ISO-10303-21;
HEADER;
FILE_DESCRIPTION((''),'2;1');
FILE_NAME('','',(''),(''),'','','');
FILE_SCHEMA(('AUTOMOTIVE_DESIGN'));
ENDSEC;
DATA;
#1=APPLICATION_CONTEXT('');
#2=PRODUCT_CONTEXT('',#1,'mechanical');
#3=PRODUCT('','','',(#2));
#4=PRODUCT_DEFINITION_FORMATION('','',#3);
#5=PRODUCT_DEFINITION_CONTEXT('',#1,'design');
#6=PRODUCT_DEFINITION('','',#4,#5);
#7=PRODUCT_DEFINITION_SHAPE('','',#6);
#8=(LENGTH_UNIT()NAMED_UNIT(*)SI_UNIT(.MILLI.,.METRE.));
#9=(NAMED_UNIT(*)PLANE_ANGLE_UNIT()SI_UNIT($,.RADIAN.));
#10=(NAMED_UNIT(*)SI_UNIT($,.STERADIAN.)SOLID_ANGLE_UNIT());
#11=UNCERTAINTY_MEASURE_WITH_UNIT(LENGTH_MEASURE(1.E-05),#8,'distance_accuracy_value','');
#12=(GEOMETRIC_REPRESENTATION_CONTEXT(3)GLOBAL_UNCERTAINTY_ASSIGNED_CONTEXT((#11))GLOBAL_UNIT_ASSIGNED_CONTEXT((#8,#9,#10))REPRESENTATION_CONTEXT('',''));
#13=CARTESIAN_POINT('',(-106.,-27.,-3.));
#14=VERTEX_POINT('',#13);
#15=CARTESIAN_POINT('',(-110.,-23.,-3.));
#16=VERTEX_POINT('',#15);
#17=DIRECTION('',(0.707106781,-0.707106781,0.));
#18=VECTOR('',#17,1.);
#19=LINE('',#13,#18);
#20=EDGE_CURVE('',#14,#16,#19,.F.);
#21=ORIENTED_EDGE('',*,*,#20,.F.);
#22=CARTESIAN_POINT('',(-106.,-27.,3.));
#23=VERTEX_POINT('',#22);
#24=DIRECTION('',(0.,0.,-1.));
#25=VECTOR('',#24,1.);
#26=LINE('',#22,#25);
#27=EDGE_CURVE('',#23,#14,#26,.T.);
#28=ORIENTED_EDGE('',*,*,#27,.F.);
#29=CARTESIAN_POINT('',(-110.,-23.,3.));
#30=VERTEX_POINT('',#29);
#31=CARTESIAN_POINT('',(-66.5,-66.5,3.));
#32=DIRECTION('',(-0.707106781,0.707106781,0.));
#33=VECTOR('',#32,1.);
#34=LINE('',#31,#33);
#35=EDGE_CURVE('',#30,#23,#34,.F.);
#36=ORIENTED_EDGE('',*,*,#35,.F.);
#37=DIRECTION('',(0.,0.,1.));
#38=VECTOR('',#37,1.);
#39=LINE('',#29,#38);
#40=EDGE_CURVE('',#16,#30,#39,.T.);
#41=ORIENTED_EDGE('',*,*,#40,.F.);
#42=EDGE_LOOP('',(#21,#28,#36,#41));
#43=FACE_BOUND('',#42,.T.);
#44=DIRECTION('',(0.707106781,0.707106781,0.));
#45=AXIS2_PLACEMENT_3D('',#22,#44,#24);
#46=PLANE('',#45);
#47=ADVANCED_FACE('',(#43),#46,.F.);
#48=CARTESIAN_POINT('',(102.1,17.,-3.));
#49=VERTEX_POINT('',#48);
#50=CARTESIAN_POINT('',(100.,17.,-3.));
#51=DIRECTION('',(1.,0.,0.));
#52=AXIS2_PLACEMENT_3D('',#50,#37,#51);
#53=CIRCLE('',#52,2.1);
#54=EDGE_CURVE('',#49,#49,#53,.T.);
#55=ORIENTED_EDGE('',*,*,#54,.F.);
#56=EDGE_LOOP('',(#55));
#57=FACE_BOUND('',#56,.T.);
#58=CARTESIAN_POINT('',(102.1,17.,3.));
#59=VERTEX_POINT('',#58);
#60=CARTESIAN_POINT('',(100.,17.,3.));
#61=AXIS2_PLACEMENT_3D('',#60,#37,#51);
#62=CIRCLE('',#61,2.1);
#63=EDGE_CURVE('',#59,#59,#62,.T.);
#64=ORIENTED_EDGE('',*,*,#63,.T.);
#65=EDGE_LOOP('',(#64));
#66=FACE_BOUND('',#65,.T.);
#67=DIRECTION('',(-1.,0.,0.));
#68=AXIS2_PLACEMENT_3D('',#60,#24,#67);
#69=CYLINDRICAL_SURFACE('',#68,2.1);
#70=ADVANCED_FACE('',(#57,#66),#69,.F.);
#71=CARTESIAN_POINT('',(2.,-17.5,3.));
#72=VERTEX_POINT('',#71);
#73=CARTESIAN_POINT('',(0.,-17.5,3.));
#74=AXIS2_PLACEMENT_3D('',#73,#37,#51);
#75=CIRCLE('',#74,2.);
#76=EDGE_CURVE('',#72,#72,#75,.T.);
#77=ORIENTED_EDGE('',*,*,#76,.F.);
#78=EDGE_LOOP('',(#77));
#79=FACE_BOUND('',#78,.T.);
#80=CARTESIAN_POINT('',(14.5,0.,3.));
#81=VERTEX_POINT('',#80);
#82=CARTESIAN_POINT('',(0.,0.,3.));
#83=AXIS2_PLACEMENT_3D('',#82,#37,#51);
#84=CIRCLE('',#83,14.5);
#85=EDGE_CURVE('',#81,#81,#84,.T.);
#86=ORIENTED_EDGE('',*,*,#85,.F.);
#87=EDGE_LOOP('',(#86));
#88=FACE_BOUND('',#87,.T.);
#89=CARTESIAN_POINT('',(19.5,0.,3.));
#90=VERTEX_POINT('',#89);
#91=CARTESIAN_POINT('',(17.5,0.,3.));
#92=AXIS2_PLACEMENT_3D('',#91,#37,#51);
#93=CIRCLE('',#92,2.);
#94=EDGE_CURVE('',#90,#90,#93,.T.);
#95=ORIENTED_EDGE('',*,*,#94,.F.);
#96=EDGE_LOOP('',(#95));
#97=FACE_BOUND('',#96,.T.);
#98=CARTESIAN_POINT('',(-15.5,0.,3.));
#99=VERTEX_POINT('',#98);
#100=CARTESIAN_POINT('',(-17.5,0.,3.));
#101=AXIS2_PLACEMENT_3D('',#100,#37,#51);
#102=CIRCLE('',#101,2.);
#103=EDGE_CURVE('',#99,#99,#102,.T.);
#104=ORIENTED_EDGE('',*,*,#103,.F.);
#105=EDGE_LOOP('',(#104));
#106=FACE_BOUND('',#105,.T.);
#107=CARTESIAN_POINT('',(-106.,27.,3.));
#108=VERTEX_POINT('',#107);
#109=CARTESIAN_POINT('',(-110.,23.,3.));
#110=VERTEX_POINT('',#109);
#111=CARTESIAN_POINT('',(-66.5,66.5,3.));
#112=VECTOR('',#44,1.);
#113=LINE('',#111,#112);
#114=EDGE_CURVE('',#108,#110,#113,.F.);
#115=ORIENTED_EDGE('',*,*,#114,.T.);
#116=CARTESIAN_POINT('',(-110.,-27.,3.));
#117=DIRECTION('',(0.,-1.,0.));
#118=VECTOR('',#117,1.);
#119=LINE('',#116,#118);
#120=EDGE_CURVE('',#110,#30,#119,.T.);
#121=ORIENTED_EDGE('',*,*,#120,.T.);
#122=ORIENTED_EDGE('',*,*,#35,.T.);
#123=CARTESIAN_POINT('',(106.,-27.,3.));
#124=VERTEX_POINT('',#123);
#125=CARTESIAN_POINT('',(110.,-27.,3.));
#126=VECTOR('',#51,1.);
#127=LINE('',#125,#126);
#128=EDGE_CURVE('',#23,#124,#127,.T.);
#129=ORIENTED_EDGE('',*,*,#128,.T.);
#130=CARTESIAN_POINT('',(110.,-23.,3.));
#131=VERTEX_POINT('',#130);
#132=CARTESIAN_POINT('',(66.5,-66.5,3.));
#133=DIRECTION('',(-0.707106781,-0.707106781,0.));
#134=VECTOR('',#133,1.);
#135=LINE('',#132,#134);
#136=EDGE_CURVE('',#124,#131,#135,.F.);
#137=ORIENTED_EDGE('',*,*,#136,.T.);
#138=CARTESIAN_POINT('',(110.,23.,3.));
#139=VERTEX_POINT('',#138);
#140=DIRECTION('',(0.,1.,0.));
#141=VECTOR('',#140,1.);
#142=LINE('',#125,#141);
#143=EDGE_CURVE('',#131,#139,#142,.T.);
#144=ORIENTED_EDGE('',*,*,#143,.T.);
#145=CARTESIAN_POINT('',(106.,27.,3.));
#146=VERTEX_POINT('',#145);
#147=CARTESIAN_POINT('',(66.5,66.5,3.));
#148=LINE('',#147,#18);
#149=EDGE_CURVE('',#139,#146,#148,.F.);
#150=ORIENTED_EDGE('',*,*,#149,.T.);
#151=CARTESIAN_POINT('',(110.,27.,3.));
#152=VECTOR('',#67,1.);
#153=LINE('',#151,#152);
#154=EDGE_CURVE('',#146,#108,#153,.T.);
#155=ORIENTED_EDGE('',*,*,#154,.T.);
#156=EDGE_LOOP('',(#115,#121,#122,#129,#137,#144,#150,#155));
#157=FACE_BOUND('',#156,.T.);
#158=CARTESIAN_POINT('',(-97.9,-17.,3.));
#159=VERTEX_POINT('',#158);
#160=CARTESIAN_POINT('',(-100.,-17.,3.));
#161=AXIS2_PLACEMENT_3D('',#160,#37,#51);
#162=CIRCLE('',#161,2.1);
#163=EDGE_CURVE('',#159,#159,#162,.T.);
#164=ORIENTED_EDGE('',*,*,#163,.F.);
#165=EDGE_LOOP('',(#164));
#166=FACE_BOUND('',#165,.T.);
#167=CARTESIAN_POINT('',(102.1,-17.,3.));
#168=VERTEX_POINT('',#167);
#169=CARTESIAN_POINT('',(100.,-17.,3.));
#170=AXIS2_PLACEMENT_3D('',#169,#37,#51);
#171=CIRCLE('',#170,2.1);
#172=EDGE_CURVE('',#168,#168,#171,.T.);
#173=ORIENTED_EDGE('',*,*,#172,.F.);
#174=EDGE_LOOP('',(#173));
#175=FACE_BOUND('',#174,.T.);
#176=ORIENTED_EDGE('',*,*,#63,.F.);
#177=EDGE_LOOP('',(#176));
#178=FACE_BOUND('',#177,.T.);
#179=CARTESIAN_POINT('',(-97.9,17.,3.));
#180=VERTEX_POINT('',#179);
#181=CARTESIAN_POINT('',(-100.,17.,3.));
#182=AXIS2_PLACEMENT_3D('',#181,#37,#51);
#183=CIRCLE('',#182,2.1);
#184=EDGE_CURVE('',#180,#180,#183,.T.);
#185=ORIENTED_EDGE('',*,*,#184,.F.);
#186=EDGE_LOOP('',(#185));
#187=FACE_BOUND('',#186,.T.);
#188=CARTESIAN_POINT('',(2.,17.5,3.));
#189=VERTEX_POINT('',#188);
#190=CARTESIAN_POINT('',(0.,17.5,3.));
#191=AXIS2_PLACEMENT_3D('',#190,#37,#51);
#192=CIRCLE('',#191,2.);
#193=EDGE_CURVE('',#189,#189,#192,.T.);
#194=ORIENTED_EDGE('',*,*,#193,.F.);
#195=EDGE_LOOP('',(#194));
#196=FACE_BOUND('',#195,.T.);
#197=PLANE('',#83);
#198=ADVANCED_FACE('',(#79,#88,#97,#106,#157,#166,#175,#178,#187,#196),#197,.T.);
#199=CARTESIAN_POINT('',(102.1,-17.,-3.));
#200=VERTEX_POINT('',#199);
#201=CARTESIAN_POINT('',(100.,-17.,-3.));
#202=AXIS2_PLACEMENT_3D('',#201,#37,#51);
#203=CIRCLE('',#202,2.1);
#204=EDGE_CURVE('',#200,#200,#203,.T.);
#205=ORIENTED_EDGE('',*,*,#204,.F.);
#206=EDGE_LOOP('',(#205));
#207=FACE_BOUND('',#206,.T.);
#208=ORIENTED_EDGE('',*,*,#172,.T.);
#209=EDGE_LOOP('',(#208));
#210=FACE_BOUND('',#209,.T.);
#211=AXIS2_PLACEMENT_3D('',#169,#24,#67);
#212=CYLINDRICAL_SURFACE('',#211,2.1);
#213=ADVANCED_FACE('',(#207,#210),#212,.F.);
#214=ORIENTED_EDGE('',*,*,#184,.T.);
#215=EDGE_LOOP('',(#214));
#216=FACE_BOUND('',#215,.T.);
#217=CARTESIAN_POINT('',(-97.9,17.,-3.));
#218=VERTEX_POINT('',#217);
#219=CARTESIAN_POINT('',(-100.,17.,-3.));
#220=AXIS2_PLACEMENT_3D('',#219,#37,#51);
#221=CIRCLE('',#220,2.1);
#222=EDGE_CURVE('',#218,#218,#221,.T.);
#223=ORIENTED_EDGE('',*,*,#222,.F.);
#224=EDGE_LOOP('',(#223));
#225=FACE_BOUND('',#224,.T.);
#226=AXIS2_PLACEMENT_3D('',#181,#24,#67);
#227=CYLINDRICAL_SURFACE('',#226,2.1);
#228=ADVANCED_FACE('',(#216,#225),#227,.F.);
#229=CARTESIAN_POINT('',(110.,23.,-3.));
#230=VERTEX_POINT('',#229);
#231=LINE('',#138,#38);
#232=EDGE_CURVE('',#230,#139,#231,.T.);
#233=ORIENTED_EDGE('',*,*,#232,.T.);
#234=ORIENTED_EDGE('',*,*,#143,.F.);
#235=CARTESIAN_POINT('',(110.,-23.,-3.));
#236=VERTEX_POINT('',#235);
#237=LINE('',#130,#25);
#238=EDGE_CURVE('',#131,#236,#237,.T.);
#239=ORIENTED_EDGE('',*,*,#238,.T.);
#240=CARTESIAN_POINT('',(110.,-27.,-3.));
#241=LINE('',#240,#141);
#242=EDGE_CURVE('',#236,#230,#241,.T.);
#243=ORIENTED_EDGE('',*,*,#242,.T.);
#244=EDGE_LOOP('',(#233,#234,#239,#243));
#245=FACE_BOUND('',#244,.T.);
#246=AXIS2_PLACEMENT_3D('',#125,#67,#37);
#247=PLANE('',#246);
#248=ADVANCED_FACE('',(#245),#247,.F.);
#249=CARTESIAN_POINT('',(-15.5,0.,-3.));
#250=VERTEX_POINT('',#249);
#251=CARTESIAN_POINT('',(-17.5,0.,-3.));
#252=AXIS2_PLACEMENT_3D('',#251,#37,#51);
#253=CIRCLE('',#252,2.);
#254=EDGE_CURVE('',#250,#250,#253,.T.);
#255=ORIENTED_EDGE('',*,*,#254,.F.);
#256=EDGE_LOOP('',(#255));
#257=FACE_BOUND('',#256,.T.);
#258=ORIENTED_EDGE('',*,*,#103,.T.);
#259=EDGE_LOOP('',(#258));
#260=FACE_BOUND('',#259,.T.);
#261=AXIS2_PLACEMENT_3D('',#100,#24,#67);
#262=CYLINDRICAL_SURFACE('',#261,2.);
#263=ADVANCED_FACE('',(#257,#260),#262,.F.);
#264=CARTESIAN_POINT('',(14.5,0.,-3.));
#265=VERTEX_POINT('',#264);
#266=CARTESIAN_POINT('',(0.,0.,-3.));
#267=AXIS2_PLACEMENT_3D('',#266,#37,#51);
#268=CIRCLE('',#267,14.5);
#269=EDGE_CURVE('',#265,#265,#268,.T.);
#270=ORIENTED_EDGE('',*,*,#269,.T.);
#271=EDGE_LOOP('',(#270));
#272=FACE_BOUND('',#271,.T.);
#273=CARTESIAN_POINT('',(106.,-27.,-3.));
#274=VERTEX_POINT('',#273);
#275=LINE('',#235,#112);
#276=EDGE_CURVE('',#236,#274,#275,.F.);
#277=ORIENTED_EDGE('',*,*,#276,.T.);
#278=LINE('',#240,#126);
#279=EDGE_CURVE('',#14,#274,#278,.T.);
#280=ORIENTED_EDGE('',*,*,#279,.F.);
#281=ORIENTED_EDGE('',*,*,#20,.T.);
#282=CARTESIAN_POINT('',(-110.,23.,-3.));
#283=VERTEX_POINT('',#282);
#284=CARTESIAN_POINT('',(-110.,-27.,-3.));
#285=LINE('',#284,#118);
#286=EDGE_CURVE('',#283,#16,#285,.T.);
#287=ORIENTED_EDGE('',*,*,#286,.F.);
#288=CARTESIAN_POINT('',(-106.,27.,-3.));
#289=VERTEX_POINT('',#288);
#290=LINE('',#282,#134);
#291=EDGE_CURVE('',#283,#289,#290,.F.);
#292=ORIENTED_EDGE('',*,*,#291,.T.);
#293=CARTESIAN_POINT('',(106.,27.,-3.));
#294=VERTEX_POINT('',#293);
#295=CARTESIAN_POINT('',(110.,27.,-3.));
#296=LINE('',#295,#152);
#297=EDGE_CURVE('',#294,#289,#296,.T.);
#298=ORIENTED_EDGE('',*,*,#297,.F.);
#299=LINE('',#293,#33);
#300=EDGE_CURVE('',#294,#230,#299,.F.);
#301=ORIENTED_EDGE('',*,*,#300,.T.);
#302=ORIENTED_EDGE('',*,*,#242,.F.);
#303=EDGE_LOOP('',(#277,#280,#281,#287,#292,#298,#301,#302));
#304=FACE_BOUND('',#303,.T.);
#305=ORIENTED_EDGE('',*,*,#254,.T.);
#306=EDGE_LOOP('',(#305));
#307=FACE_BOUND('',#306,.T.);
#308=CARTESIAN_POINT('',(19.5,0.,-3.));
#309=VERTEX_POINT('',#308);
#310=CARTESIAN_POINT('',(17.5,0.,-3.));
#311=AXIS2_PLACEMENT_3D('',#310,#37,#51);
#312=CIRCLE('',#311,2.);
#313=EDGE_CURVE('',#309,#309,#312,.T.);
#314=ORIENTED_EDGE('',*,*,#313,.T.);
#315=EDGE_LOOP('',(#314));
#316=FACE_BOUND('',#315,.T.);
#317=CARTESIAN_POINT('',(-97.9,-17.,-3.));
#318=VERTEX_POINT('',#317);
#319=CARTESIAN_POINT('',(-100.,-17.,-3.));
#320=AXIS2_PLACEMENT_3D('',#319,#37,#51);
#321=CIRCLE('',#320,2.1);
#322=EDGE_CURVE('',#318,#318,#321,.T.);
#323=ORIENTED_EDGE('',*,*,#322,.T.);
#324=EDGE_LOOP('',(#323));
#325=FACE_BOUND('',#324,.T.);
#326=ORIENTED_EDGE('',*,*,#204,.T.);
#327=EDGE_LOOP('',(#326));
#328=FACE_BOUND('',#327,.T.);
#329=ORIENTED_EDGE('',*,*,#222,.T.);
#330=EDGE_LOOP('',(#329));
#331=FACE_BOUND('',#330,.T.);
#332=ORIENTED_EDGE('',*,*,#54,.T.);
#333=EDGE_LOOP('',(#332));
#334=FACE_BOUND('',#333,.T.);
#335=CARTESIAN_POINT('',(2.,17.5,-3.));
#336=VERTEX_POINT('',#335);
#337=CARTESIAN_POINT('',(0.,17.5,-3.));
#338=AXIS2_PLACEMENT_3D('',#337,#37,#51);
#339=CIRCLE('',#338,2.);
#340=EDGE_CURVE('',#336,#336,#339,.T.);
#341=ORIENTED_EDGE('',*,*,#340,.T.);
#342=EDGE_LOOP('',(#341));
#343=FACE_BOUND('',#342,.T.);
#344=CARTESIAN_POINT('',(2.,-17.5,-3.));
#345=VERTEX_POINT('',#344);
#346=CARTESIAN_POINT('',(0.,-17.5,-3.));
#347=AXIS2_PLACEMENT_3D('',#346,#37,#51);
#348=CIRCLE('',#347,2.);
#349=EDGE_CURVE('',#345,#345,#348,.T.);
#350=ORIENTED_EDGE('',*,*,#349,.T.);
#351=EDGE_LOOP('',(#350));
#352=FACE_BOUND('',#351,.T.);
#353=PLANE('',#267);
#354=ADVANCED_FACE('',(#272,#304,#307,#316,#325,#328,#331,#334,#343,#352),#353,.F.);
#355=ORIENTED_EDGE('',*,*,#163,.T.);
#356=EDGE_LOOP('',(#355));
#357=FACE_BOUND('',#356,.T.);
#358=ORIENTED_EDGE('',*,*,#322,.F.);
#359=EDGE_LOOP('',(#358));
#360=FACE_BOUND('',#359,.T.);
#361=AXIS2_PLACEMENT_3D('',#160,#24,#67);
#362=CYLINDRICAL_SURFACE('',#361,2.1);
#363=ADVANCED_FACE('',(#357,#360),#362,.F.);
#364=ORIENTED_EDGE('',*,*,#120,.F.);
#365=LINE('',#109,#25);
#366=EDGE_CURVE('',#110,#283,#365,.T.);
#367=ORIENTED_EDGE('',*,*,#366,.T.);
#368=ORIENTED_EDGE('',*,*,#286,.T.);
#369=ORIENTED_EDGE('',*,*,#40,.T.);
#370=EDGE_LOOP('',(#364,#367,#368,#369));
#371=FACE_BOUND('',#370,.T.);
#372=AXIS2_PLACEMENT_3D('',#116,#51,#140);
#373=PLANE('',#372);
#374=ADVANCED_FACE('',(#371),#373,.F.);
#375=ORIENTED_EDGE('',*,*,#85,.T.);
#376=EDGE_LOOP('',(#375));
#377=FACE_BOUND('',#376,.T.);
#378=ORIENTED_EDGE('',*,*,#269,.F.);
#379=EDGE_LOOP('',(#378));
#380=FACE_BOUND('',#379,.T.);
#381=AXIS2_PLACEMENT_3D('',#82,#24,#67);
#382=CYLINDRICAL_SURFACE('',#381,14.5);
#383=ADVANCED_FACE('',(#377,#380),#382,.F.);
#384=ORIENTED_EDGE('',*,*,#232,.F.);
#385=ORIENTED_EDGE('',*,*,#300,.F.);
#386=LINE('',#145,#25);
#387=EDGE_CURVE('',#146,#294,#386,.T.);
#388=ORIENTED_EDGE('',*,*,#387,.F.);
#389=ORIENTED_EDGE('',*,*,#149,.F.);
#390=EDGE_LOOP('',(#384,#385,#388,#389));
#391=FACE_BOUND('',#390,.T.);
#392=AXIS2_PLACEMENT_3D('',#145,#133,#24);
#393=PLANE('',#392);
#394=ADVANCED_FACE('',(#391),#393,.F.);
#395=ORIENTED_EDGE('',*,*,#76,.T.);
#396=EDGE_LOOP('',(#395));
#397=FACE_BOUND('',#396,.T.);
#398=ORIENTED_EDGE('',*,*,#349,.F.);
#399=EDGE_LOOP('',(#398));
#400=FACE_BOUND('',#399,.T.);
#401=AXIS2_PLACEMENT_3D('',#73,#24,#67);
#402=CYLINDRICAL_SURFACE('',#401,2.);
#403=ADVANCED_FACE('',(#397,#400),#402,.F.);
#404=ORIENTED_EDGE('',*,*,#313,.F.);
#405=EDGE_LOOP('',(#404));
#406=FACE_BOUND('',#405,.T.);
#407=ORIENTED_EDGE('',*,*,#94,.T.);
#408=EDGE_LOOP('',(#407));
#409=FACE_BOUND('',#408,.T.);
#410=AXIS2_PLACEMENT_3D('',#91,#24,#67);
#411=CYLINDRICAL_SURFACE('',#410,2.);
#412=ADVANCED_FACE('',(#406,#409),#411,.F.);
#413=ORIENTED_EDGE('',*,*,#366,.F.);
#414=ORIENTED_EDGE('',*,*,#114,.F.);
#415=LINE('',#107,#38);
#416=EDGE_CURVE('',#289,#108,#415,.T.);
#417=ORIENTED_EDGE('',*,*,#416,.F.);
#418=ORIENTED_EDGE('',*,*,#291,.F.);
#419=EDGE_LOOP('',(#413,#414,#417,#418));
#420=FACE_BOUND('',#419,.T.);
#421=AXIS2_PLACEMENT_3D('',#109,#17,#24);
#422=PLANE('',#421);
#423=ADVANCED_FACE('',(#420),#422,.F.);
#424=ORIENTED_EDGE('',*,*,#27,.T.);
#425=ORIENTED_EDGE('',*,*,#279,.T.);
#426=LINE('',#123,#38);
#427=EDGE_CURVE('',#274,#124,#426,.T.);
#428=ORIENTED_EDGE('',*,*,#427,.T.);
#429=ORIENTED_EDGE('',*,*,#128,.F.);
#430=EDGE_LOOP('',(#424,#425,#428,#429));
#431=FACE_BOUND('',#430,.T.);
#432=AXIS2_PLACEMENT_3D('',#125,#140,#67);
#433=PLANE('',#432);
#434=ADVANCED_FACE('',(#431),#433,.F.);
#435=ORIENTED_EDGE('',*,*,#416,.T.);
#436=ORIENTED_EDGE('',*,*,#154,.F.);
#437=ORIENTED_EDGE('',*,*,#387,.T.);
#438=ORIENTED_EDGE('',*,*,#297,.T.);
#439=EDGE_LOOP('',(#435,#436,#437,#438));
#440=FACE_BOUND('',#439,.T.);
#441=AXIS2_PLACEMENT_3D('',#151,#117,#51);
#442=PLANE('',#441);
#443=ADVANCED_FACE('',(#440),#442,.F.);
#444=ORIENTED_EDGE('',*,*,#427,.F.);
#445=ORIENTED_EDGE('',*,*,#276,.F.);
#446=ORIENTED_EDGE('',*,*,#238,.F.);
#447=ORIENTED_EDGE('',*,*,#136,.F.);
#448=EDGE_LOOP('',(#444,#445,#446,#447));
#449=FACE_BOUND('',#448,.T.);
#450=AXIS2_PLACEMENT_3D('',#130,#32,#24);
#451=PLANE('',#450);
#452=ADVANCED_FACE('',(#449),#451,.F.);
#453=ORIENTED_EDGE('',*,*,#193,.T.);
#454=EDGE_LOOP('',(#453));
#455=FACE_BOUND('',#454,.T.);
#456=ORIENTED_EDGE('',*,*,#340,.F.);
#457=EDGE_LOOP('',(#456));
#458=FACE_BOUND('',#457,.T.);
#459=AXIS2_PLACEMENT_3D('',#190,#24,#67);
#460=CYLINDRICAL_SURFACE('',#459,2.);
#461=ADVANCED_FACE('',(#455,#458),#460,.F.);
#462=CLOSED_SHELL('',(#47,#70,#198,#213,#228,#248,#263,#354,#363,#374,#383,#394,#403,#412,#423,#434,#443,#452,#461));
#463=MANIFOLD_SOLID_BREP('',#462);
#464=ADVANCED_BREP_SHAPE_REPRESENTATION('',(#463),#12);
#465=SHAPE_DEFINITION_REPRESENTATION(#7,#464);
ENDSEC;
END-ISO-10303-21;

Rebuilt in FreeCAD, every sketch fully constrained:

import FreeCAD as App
import Part
import Sketcher

V = App.Vector
Q = App.Units.Quantity


def edges_at(feature, points):
    """Names of the edges that pass closest to the given points."""
    edges = feature.Shape.Edges
    near = lambda p: min(range(len(edges)), key=lambda i: edges[i].distToShape(Part.Vertex(*p))[0])
    return sorted({f"Edge{near(p) + 1}" for p in points})

doc = App.newDocument("Part")
params = doc.addObject("Spreadsheet::Sheet", "Params")
for row, (alias, value) in enumerate([
    ("sketch1_diameter", "4 mm"),
    ("sketch1_diameter2", "29 mm"),
    ("sketch1_diameter3", "4.2 mm"),
    ("sketch1_width", "220 mm"),
    ("sketch1_height", "54 mm"),
    ("pad1_length", "6 mm"),
    ("chamfer_size", "4 mm"),
], start=1):
    params.set(f"A{row}", alias)
    params.set(f"B{row}", "=" + value)
    params.setAlias(f"B{row}", alias)

body = doc.addObject("PartDesign::Body", "Body")

sketch1 = body.newObject("Sketcher::SketchObject", "Sketch")
sketch1.AttachmentSupport = (doc.getObject("XY_Plane"), [""])
sketch1.MapMode = "FlatFace"
sketch1.addGeometry([
    Part.LineSegment(V(-110, 27, 0), V(-110, -27, 0)),
    Part.LineSegment(V(-110, -27, 0), V(110, -27, 0)),
    Part.LineSegment(V(110, -27, 0), V(110, 27, 0)),
    Part.LineSegment(V(110, 27, 0), V(-110, 27, 0)),
    Part.Circle(V(-100, -17, 0), V(0, 0, 1), 2.1),
    Part.Circle(V(0, -17.5, 0), V(0, 0, 1), 2),
    Part.Circle(V(100, -17, 0), V(0, 0, 1), 2.1),
    Part.Circle(V(-17.5, 0, 0), V(0, 0, 1), 2),
    Part.Circle(V(-100, 17, 0), V(0, 0, 1), 2.1),
    Part.Circle(V(0, 0, 0), V(0, 0, 1), 14.5),
    Part.Circle(V(17.5, 0, 0), V(0, 0, 1), 2),
    Part.Circle(V(0, 17.5, 0), V(0, 0, 1), 2),
    Part.Circle(V(100, 17, 0), V(0, 0, 1), 2.1),
], False)
sketch1.addConstraint([
    Sketcher.Constraint("Coincident", 0, 2, 1, 1),
    Sketcher.Constraint("Coincident", 1, 2, 2, 1),
    Sketcher.Constraint("Coincident", 2, 2, 3, 1),
    Sketcher.Constraint("Coincident", 3, 2, 0, 1),
    Sketcher.Constraint("Vertical", 0),
    Sketcher.Constraint("Horizontal", 1),
    Sketcher.Constraint("Vertical", 2),
    Sketcher.Constraint("Horizontal", 3),
    Sketcher.Constraint("Coincident", 9, 3, -1, 1),
    Sketcher.Constraint("Equal", 4, 6),
    Sketcher.Constraint("Equal", 5, 7),
    Sketcher.Constraint("Equal", 6, 8),
    Sketcher.Constraint("Equal", 7, 10),
    Sketcher.Constraint("Equal", 10, 11),
    Sketcher.Constraint("Equal", 8, 12),
    Sketcher.Constraint("Symmetric", 6, 3, 8, 3, -1, 1),
    Sketcher.Constraint("Symmetric", 7, 3, 10, 3, -1, 1),
    Sketcher.Constraint("Symmetric", 5, 3, 11, 3, -1, 1),
    Sketcher.Constraint("Symmetric", 4, 3, 12, 3, -1, 1),
    Sketcher.Constraint("Symmetric", 0, 2, 2, 2, -1, 1),
    Sketcher.Constraint("Symmetric", 4, 3, 6, 3, -2),
    Sketcher.Constraint("PointOnObject", 5, 3, -2),
    Sketcher.Constraint("PointOnObject", 7, 3, -1),
    Sketcher.Constraint("Diameter", 5, Q("4 mm")),
    Sketcher.Constraint("Diameter", 9, Q("29 mm")),
    Sketcher.Constraint("Diameter", 4, Q("4.2 mm")),
    Sketcher.Constraint("DistanceX", 1, 1, 1, 2, Q("220 mm")),
    Sketcher.Constraint("DistanceY", 0, 2, 0, 1, Q("54 mm")),
    Sketcher.Constraint("DistanceX", 4, 3, -1, 1, Q("100 mm")),
    Sketcher.Constraint("DistanceY", 4, 3, -1, 1, Q("17 mm")),
    Sketcher.Constraint("DistanceX", 7, 3, 10, 3, Q("35 mm")),
    Sketcher.Constraint("DistanceY", 5, 3, 11, 3, Q("35 mm")),
])
sketch1.setExpression("Constraints[23]", "Params.sketch1_diameter")
sketch1.setExpression("Constraints[24]", "Params.sketch1_diameter2")
sketch1.setExpression("Constraints[25]", "Params.sketch1_diameter3")
sketch1.setExpression("Constraints[26]", "Params.sketch1_width")
sketch1.setExpression("Constraints[27]", "Params.sketch1_height")
pad1 = body.newObject("PartDesign::Pad", "Pad")
pad1.Profile = sketch1
pad1.setExpression("Length", "Params.pad1_length")
pad1.Midplane = True
doc.recompute()

chamfer = body.newObject("PartDesign::Chamfer", "Chamfer")
chamfer.Base = (pad1, edges_at(pad1, [
    (-110, 27, 0),
    (110, 27, 0),
    (110, -27, 0),
    (-110, -27, 0),
]))
chamfer.setExpression("Size", "Params.chamfer_size")

doc.recompute()
